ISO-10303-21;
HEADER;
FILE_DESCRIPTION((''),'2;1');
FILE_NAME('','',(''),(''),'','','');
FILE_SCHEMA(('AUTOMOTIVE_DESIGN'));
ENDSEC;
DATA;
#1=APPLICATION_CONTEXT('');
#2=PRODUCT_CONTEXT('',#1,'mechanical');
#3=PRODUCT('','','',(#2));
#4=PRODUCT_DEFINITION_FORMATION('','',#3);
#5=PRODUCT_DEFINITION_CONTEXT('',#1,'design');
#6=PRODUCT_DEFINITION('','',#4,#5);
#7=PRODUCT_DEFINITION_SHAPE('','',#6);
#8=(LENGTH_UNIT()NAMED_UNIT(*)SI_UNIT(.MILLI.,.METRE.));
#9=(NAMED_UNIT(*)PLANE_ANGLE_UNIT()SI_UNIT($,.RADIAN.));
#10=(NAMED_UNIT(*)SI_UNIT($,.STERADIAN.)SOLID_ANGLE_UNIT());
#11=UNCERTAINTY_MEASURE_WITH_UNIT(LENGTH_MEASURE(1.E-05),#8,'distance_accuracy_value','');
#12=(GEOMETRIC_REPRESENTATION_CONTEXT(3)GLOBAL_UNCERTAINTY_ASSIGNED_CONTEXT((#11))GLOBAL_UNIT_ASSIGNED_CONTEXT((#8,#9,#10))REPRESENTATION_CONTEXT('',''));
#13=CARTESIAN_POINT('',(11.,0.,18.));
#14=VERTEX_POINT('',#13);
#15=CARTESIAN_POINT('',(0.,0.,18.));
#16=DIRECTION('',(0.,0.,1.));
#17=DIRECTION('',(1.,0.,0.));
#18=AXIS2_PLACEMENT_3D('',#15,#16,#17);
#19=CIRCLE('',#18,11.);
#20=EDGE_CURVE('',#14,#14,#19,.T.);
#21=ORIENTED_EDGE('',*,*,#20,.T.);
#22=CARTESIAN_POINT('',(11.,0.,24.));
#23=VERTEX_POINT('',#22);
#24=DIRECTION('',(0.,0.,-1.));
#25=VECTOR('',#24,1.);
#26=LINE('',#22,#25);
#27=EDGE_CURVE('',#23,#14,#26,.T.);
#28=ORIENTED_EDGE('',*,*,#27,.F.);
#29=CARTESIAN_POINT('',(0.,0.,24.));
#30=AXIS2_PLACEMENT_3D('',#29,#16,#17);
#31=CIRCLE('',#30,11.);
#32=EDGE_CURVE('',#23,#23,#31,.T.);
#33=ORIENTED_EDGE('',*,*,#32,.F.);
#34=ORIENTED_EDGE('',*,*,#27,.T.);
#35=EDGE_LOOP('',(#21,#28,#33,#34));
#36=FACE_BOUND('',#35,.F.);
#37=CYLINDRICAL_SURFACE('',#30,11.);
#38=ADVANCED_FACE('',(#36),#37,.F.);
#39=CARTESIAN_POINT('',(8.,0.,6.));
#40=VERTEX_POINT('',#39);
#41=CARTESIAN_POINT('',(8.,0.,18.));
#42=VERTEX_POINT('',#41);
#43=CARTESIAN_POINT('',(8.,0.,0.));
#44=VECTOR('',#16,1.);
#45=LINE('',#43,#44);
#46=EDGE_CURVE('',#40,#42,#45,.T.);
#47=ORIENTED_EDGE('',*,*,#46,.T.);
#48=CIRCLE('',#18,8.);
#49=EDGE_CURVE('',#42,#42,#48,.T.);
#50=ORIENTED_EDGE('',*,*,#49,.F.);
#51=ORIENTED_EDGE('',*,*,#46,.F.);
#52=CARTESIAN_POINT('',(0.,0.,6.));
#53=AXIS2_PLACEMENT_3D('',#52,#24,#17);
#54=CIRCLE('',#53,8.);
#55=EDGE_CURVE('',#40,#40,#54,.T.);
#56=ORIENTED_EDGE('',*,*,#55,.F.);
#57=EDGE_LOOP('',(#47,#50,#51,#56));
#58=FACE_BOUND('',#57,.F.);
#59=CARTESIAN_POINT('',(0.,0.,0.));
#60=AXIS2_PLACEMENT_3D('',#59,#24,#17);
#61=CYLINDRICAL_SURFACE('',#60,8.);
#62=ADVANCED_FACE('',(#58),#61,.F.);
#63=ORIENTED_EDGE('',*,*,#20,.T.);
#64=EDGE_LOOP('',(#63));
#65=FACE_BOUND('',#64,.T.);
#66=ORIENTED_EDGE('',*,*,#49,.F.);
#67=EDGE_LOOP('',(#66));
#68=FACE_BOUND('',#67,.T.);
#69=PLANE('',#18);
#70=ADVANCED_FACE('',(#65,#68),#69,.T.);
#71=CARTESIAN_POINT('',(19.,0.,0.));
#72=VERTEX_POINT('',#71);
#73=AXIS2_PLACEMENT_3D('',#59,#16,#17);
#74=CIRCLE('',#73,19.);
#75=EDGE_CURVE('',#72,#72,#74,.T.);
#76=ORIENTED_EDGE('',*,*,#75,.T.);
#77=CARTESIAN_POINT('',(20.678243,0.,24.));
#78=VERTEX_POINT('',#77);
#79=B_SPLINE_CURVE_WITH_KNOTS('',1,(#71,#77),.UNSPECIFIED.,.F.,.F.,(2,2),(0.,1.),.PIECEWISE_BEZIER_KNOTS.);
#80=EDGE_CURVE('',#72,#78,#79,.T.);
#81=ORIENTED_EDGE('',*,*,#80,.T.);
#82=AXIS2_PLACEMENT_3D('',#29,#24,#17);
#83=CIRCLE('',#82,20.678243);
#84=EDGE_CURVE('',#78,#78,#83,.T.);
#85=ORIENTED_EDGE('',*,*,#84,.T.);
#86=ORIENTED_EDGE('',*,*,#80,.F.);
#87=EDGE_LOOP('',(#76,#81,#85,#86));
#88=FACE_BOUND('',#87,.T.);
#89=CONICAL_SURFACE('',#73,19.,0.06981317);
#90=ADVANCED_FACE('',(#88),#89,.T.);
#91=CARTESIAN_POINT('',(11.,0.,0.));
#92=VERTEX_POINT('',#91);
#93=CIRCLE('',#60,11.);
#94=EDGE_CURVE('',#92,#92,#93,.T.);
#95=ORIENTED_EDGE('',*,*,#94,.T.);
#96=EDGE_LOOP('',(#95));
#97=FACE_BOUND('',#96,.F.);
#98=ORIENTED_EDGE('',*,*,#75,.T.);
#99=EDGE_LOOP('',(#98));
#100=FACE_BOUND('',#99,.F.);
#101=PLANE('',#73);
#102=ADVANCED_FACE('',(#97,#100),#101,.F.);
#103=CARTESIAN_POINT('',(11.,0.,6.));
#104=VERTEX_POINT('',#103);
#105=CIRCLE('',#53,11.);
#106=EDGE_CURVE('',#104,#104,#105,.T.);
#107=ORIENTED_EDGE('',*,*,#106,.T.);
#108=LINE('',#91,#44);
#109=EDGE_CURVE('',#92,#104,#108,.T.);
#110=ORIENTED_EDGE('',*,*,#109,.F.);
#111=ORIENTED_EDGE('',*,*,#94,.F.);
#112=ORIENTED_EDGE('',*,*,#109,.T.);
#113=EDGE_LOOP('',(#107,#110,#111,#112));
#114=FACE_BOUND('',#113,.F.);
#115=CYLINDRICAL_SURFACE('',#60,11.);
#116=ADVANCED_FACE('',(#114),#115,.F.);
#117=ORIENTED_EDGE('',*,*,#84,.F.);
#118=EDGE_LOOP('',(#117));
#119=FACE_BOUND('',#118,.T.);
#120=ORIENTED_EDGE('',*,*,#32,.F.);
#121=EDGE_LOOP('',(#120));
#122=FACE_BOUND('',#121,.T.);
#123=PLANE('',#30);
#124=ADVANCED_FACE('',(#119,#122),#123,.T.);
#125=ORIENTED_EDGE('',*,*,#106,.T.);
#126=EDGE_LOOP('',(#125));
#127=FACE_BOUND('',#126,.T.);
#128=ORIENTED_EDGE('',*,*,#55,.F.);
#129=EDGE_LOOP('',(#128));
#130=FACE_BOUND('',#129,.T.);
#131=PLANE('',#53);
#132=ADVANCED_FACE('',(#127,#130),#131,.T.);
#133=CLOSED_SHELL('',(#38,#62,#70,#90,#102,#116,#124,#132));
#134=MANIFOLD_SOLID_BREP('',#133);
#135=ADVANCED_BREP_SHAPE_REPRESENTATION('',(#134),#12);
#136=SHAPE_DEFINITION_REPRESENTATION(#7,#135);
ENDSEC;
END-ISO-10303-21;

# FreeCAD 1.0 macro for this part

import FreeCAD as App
import Part
import Sketcher

V = App.Vector

doc = App.newDocument("Part")
body = doc.addObject("PartDesign::Body", "Body")

# Sketch on XY plane
sketch1 = doc.addObject("Sketcher::SketchObject", "Sketch")
body.addObject(sketch1)
sketch1.AttachmentSupport = (doc.XY_Plane, [""])
sketch1.MapMode = "FlatFace"
sketch1.addGeometry(Part.Circle(V(0, 0, 0), V(0, 0, 1), 19), False)
sketch1.addConstraint([
    Sketcher.Constraint("Coincident", 0, 3, -1, 1),
    Sketcher.Constraint("Diameter", 0, 38.0),
])
pad1 = doc.addObject("PartDesign::Pad", "Pad")
body.addObject(pad1)
pad1.Profile = sketch1
pad1.Length = 24
pad1.TaperAngle = 4

# Sketch on XY plane
sketch2 = doc.addObject("Sketcher::SketchObject", "Sketch001")
body.addObject(sketch2)
sketch2.AttachmentSupport = (doc.XY_Plane, [""])
sketch2.MapMode = "FlatFace"
sketch2.addGeometry(Part.Circle(V(0, 0, 0), V(0, 0, 1), 8), False)
sketch2.addConstraint([
    Sketcher.Constraint("Coincident", 0, 3, -1, 1),
    Sketcher.Constraint("Diameter", 0, 16.0),
])
pocket1 = doc.addObject("PartDesign::Pocket", "Pocket")
body.addObject(pocket1)
pocket1.Profile = sketch2
pocket1.Type = "ThroughAll"
pocket1.Reversed = True

# Sketch on XY plane
sketch3 = doc.addObject("Sketcher::SketchObject", "Sketch002")
body.addObject(sketch3)
sketch3.AttachmentSupport = (doc.XY_Plane, [""])
sketch3.MapMode = "FlatFace"
sketch3.addGeometry([
    Part.Circle(V(0, 0, 0), V(0, 0, 1), 11),
    Part.Circle(V(0, 0, 0), V(0, 0, 1), 8),
], False)
sketch3.addConstraint([
    Sketcher.Constraint("Coincident", 0, 3, -1, 1),
    Sketcher.Constraint("Coincident", 1, 3, -1, 1),
    Sketcher.Constraint("Diameter", 0, 22.0),
    Sketcher.Constraint("Diameter", 1, 16.0),
])
pocket2 = doc.addObject("PartDesign::Pocket", "Pocket001")
body.addObject(pocket2)
pocket2.Profile = sketch3
pocket2.Length = 6
pocket2.Reversed = True

# Sketch on XY plane
sketch4 = doc.addObject("Sketcher::SketchObject", "Sketch003")
body.addObject(sketch4)
sketch4.AttachmentSupport = (doc.XY_Plane, [""])
sketch4.MapMode = "FlatFace"
sketch4.AttachmentOffset = App.Placement(V(0, 0, 24), App.Rotation())
sketch4.addGeometry([
    Part.Circle(V(0, 0, 0), V(0, 0, 1), 11),
    Part.Circle(V(0, 0, 0), V(0, 0, 1), 8),
], False)
sketch4.addConstraint([
    Sketcher.Constraint("Coincident", 0, 3, -1, 1),
    Sketcher.Constraint("Coincident", 1, 3, -1, 1),
    Sketcher.Constraint("Diameter", 0, 22.0),
    Sketcher.Constraint("Diameter", 1, 16.0),
])
pocket3 = doc.addObject("PartDesign::Pocket", "Pocket002")
body.addObject(pocket3)
pocket3.Profile = sketch4
pocket3.Length = 6

doc.recompute()
